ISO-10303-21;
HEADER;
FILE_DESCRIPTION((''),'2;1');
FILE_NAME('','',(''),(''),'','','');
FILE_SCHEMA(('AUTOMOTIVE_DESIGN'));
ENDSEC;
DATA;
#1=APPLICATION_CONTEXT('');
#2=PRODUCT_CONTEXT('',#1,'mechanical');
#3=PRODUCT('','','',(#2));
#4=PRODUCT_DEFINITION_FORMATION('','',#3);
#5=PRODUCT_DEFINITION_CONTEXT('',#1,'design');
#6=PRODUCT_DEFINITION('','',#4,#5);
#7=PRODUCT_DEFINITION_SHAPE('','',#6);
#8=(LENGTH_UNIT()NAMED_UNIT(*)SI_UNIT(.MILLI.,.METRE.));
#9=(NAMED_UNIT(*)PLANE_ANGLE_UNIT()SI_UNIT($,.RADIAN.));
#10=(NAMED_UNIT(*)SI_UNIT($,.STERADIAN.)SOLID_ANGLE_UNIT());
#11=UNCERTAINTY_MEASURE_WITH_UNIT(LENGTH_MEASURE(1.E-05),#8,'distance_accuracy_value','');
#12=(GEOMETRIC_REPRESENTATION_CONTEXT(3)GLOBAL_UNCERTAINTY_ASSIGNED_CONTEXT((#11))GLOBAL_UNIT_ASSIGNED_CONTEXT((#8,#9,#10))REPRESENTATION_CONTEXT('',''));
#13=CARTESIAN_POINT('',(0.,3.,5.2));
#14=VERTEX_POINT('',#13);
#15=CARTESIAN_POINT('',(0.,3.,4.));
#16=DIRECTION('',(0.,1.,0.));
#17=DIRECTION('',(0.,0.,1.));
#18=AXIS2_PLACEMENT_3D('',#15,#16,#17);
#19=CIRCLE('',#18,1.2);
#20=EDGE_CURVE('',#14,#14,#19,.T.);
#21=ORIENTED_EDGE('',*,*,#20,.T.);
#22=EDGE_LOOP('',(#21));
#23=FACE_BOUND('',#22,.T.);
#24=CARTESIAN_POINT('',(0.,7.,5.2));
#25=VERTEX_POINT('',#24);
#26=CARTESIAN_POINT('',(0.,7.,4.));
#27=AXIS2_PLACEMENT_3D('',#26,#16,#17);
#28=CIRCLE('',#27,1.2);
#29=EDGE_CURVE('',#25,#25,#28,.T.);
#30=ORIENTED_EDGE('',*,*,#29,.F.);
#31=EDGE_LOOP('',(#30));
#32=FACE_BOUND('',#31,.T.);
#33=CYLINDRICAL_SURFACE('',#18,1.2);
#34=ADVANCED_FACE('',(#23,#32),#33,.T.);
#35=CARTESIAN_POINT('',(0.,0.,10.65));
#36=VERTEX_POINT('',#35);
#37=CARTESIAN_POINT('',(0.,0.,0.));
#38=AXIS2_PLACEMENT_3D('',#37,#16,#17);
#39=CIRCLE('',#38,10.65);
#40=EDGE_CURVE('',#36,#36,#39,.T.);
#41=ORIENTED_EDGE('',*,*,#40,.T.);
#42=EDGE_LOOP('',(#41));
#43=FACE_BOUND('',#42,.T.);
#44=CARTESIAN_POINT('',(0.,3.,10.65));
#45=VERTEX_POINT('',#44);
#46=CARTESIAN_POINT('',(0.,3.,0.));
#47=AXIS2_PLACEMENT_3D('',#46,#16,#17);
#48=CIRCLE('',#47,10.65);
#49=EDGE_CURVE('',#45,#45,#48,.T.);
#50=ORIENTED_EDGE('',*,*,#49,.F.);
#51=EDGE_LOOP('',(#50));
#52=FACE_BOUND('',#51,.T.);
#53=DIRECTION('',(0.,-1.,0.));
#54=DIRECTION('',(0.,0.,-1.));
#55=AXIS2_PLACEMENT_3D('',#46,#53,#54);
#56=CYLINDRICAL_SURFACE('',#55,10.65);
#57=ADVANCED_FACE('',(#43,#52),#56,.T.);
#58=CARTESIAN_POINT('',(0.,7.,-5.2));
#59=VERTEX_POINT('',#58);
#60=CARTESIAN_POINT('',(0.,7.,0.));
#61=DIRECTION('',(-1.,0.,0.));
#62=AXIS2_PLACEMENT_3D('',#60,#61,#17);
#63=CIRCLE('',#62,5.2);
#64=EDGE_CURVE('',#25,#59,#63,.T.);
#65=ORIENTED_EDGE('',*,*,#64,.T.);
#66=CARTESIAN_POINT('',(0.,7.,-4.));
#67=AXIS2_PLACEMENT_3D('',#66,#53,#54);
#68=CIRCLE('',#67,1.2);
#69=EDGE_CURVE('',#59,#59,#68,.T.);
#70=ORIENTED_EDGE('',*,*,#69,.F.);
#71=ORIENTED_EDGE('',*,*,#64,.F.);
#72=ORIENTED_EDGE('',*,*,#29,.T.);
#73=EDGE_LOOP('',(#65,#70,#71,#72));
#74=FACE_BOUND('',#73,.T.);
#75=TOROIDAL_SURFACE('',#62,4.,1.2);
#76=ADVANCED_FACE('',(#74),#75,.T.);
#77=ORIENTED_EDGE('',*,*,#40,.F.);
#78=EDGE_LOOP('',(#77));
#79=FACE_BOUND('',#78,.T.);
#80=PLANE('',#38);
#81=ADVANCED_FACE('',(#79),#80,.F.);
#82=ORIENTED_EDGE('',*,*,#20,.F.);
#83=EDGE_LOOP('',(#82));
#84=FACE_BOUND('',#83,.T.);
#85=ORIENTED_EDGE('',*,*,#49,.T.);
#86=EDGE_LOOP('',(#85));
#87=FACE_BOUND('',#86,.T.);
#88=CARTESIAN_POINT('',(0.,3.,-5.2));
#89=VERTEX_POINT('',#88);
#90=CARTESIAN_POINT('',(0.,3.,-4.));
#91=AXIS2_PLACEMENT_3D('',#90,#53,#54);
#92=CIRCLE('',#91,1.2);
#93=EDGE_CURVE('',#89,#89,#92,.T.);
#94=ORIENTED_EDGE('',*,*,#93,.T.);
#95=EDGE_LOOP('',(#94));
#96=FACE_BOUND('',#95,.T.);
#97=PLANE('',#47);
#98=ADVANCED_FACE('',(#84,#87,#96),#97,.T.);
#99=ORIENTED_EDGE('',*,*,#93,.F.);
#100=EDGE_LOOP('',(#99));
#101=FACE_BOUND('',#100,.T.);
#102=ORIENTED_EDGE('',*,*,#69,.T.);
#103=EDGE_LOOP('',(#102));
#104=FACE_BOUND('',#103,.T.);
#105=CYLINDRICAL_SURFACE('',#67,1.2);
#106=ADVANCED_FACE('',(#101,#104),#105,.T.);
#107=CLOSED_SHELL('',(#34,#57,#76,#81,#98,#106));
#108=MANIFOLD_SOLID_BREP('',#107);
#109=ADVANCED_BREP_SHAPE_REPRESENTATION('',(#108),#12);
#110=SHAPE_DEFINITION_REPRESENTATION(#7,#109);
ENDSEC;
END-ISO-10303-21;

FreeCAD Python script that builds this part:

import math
import FreeCAD as App
import Part
import Sketcher
Q = App.Units.Quantity

doc = App.newDocument("Part")
body = doc.addObject("PartDesign::Body", "Body")

# Sketch on XZ plane
sketch1 = body.newObject("Sketcher::SketchObject", "Sketch")
sketch1.AttachmentSupport = (doc.getObject("XZ_Plane"), [""])
sketch1.MapMode = "FlatFace"
sketch1.addGeometry(Part.Circle(App.Vector(0, 0, 0), App.Vector(0, 0, 1), 11), False)
sketch1.addConstraint([
    Sketcher.Constraint("Coincident", 0, 3, -1, 1),
    Sketcher.Constraint("Diameter", 0, Q("21.3 mm")),
])
pad1 = body.newObject("PartDesign::Pad", "Pad")
pad1.Profile = sketch1
pad1.Length = 3
pad1.Reversed = True

# Sketch on XZ plane
sketch2 = body.newObject("Sketcher::SketchObject", "Sketch001")
sketch2.AttachmentSupport = (doc.getObject("XZ_Plane"), [""])
sketch2.MapMode = "FlatFace"
sketch2.AttachmentOffset = App.Placement(App.Vector(0, 0, -3), App.Rotation())
sketch2.addGeometry(Part.Circle(App.Vector(0, 4, 0), App.Vector(0, 0, 1), 1.2), False)
sketch2.addConstraint([
    Sketcher.Constraint("PointOnObject", 0, 3, -2),
    Sketcher.Constraint("Diameter", 0, Q("2.4 mm")),
    Sketcher.Constraint("DistanceY", -1, 1, 0, 3, Q("4 mm")),
])

# Sketch on YZ plane
sketch3 = body.newObject("Sketcher::SketchObject", "Sketch002")
sketch3.AttachmentSupport = (doc.getObject("YZ_Plane"), [""])
sketch3.MapMode = "FlatFace"
sketch3.addGeometry([
    Part.LineSegment(App.Vector(3, 4, 0), App.Vector(7, 4, 0)),
    Part.ArcOfCircle(Part.Circle(App.Vector(7, 0, 0), App.Vector(0, 0, 1), 4), math.radians(-90), math.radians(90)),
    Part.LineSegment(App.Vector(7, -4, 0), App.Vector(3, -4, 0)),
], False)
sketch3.addConstraint([
    Sketcher.Constraint("Tangent", 0, 2, 1, 2),
    Sketcher.Constraint("Tangent", 1, 1, 2, 1),
    Sketcher.Constraint("Horizontal", 0),
    Sketcher.Constraint("Horizontal", 2),
    Sketcher.Constraint("Symmetric", 0, 1, 2, 2, -1),
    Sketcher.Constraint("Radius", 1, Q("4 mm")),
    Sketcher.Constraint("DistanceX", 0, 1, 0, 2, Q("4 mm")),
    Sketcher.Constraint("DistanceX", -1, 1, 1, 3, Q("7 mm")),
])
doc.recompute()

additivepipe = body.newObject("PartDesign::AdditivePipe", "AdditivePipe")
additivepipe.Profile = sketch2
additivepipe.Spine = (sketch3, ["Edge1", "Edge2", "Edge3"])

doc.recompute()
